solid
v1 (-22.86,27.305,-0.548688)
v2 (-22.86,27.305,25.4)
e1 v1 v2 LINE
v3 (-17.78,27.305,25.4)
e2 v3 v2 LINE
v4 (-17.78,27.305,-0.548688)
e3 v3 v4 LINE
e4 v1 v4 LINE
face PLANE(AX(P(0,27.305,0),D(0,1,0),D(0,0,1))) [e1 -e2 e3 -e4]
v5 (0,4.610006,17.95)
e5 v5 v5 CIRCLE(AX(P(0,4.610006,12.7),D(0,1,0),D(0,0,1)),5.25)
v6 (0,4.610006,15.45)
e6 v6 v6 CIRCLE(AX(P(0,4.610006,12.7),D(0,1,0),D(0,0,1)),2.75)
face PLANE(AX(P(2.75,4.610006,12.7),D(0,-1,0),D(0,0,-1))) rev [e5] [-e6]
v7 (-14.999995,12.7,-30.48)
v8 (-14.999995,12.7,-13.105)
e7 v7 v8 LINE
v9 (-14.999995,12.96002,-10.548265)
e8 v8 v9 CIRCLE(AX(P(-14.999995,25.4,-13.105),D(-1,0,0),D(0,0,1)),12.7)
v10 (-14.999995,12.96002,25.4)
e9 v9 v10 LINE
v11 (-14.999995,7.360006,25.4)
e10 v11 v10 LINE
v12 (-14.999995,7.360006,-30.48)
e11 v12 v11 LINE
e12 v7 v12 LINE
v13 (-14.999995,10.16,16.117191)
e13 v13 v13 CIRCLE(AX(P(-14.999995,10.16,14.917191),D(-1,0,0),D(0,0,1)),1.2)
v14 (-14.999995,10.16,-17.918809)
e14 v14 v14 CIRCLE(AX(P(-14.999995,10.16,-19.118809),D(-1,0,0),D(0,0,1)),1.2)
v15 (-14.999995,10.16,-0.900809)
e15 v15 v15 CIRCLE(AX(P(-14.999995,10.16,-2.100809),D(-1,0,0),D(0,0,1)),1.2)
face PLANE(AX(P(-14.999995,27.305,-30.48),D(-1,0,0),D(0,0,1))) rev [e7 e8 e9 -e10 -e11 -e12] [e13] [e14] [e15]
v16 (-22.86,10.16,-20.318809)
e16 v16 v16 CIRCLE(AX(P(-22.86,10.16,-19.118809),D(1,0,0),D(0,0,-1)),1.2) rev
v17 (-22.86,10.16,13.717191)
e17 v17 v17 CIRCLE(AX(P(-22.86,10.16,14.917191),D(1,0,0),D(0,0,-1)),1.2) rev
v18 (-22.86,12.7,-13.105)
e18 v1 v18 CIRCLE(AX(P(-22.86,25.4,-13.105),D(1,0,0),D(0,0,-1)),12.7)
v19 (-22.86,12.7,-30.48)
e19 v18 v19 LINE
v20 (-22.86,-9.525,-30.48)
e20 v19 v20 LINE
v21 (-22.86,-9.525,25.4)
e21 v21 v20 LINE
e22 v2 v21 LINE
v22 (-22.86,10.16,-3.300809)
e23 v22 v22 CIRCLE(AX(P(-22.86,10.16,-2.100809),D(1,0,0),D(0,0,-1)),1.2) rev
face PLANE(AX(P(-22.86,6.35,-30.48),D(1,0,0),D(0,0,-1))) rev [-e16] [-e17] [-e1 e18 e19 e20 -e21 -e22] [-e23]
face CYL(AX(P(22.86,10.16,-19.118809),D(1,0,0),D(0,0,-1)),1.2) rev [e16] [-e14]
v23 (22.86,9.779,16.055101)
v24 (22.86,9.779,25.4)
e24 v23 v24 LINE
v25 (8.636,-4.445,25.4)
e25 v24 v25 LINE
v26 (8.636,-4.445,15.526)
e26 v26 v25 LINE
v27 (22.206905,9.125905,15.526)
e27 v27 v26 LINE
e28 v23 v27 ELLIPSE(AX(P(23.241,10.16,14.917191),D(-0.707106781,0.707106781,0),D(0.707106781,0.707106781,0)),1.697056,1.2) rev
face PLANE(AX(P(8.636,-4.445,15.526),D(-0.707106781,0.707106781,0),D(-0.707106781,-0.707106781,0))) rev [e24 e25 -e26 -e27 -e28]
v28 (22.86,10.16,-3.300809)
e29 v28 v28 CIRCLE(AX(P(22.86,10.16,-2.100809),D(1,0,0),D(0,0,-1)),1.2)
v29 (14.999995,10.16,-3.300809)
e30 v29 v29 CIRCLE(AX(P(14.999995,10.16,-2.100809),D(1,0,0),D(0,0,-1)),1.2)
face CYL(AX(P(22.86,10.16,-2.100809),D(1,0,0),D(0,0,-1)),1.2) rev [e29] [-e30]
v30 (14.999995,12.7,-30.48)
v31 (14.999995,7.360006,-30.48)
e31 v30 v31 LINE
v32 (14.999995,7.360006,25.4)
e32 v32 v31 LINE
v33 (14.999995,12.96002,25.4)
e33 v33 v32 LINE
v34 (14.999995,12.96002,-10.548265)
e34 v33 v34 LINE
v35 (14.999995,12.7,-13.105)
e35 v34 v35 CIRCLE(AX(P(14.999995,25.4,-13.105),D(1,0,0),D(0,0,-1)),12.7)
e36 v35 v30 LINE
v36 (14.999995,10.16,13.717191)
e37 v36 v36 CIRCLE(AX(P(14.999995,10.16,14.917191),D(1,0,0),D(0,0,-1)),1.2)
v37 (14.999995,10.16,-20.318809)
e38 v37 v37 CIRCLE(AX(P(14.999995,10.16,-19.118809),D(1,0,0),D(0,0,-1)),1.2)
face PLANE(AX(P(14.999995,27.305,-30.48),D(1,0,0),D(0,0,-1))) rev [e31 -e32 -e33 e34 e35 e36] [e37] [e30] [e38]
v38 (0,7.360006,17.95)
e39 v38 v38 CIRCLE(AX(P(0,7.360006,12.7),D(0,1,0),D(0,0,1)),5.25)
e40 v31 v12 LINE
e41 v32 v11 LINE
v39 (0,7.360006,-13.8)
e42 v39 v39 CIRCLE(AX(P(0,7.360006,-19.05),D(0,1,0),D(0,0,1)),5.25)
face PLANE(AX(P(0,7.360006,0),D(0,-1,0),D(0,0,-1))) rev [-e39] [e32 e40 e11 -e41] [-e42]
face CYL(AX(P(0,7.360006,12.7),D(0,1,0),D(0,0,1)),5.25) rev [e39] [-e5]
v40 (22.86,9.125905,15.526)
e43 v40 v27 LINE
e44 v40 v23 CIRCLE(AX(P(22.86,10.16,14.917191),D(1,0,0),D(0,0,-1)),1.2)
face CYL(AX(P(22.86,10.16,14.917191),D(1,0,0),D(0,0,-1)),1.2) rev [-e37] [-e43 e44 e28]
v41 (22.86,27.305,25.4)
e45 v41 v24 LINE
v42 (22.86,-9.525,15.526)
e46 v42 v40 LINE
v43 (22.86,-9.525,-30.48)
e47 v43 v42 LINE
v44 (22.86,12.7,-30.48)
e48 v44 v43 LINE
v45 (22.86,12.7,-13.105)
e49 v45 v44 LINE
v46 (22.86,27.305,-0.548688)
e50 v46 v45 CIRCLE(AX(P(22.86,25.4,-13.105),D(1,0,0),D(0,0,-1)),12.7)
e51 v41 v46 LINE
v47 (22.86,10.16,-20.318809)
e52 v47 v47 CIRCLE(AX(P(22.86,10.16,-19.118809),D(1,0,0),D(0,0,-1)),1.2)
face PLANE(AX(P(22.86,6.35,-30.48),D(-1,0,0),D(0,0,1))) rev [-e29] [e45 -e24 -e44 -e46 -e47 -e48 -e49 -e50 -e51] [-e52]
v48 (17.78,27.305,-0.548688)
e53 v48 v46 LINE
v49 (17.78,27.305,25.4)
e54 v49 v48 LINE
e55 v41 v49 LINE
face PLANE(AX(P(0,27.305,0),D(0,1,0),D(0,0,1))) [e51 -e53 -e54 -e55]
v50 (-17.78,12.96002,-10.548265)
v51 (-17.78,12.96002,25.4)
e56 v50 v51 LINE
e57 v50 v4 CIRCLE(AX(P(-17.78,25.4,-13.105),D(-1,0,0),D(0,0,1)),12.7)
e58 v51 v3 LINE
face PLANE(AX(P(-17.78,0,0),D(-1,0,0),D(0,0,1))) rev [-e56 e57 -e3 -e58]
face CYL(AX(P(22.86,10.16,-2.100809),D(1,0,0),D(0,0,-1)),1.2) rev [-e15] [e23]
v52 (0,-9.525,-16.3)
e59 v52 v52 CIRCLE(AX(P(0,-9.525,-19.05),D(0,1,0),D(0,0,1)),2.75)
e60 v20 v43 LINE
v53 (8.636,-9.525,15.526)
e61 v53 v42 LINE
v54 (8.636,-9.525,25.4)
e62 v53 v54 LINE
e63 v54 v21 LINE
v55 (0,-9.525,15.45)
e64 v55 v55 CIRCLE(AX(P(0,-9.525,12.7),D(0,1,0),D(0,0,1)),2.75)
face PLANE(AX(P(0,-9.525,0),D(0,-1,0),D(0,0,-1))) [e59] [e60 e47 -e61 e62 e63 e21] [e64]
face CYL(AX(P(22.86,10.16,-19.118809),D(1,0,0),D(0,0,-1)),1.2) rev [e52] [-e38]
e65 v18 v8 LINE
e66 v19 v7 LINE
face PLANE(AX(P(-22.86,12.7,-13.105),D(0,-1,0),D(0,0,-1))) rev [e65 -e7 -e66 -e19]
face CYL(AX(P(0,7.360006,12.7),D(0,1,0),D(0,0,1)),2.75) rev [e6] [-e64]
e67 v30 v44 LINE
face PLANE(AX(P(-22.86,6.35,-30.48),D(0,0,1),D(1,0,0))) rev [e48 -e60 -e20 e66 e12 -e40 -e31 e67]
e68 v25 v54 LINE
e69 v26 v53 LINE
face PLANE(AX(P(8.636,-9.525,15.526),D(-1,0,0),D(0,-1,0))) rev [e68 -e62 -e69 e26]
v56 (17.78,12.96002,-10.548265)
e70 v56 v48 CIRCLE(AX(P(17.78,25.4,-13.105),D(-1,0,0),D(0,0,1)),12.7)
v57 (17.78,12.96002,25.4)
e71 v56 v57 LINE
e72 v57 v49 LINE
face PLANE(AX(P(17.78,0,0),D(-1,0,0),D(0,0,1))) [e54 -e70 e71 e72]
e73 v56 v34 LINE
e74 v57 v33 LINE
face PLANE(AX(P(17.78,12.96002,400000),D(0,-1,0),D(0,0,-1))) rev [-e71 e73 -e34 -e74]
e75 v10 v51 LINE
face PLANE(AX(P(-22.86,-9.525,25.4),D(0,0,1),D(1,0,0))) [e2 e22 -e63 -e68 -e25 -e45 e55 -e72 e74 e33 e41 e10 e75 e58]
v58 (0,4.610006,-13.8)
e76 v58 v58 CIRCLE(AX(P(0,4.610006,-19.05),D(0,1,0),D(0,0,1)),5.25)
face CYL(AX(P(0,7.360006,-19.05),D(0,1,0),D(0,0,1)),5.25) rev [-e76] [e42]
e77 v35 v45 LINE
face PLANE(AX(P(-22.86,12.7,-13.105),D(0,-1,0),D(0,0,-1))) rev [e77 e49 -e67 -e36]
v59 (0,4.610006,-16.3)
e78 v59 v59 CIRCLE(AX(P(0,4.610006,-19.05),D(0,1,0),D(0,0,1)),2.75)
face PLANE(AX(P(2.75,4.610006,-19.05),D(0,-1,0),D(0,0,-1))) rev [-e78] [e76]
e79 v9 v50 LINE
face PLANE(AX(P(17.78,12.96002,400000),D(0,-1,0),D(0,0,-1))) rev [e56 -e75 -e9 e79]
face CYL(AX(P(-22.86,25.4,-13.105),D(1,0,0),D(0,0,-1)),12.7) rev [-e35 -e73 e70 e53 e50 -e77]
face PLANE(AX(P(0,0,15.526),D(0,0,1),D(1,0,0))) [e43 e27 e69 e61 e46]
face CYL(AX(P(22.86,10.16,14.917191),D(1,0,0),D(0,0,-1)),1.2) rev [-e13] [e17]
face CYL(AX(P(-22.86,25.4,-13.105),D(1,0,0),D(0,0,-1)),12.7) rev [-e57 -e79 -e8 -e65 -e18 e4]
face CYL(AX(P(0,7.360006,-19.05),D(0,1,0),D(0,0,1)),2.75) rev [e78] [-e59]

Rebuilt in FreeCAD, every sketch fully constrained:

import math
import FreeCAD as App
import Part
import Sketcher
from FreeCAD import Vector
Q = App.Units.Quantity

doc = App.newDocument("Part")
body = doc.addObject("PartDesign::Body", "Body")

# Sketch on XZ plane
sketch1 = body.newObject("Sketcher::SketchObject", "Sketch")
sketch1.AttachmentSupport = (doc.getObject("XZ_Plane"), [""])
sketch1.MapMode = "FlatFace"
sketch1.addGeometry([
    Part.LineSegment(Vector(-23, -30, 0), Vector(-23, 30, 0)),
    Part.LineSegment(Vector(-23, 30, 0), Vector(23, 30, 0)),
    Part.LineSegment(Vector(23, 30, 0), Vector(23, -30, 0)),
    Part.LineSegment(Vector(23, -30, 0), Vector(-23, -30, 0)),
], False)
sketch1.addConstraint([
    Sketcher.Constraint("Coincident", 0, 2, 1, 1),
    Sketcher.Constraint("Coincident", 1, 2, 2, 1),
    Sketcher.Constraint("Coincident", 2, 2, 3, 1),
    Sketcher.Constraint("Coincident", 3, 2, 0, 1),
    Sketcher.Constraint("Vertical", 0),
    Sketcher.Constraint("Horizontal", 1),
    Sketcher.Constraint("Vertical", 2),
    Sketcher.Constraint("Horizontal", 3),
    Sketcher.Constraint("Symmetric", 0, 2, 2, 2, -1, 1),
    Sketcher.Constraint("DistanceX", 1, 1, 1, 2, Q("1.8 in")),
    Sketcher.Constraint("DistanceY", 0, 1, 0, 2, Q("2.4 in")),
])
pad1 = body.newObject("PartDesign::Pad", "Pad")
pad1.Profile = sketch1
pad1.Length = Q("0.25 in")
pad1.Reversed = True

# Sketch on XZ plane
sketch2 = body.newObject("Sketcher::SketchObject", "Sketch001")
sketch2.AttachmentSupport = (doc.getObject("XZ_Plane"), [""])
sketch2.MapMode = "FlatFace"
sketch2.AttachmentOffset = App.Placement(Vector(0, 0, -0.25 * 25.4), App.Rotation())
sketch2.addGeometry([
    Part.LineSegment(Vector(-23, -30, 0), Vector(-23, 30, 0)),  # 0
    Part.LineSegment(Vector(-23, 30, 0), Vector(-15, 30, 0)),  # 1
    Part.LineSegment(Vector(-15, 30, 0), Vector(-15, -30, 0)),  # 2
    Part.LineSegment(Vector(-15, -30, 0), Vector(-23, -30, 0)),  # 3
    Part.LineSegment(Vector(15, -30, 0), Vector(15, 30, 0)),  # 4
    Part.LineSegment(Vector(15, 30, 0), Vector(23, 30, 0)),  # 5
    Part.LineSegment(Vector(23, 30, 0), Vector(23, -30, 0)),  # 6
    Part.LineSegment(Vector(23, -30, 0), Vector(15, -30, 0)),  # 7
], False)
sketch2.addConstraint([
    Sketcher.Constraint("Coincident", 0, 2, 1, 1),
    Sketcher.Constraint("Coincident", 1, 2, 2, 1),
    Sketcher.Constraint("Coincident", 2, 2, 3, 1),
    Sketcher.Constraint("Coincident", 3, 2, 0, 1),
    Sketcher.Constraint("Coincident", 4, 2, 5, 1),
    Sketcher.Constraint("Coincident", 5, 2, 6, 1),
    Sketcher.Constraint("Coincident", 6, 2, 7, 1),
    Sketcher.Constraint("Coincident", 7, 2, 4, 1),
    Sketcher.Constraint("Vertical", 0),
    Sketcher.Constraint("Horizontal", 1),
    Sketcher.Constraint("Vertical", 2),
    Sketcher.Constraint("Horizontal", 3),
    Sketcher.Constraint("Vertical", 4),
    Sketcher.Constraint("Horizontal", 5),
    Sketcher.Constraint("Vertical", 6),
    Sketcher.Constraint("Horizontal", 7),
    Sketcher.Constraint("Symmetric", 2, 2, 4, 2, -1, 1),
    Sketcher.Constraint("Symmetric", 0, 2, 6, 2, -1, 1),
    Sketcher.Constraint("Horizontal", 1, 2, 4, 2),
    Sketcher.Constraint("DistanceY", 0, 1, 0, 2, Q("2.4 in")),
    Sketcher.Constraint("DistanceX", 0, 2, -1, 1, Q("0.9 in")),
    Sketcher.Constraint("DistanceX", 1, 1, 1, 2, 7.860005),
])
pad2 = body.newObject("PartDesign::Pad", "Pad001")
pad2.Profile = sketch2
pad2.Length = Q("0.825 in")
pad2.Reversed = True

# Sketch on XZ plane
sketch3 = body.newObject("Sketcher::SketchObject", "Sketch002")
sketch3.AttachmentSupport = (doc.getObject("XZ_Plane"), [""])
sketch3.MapMode = "FlatFace"
sketch3.AttachmentOffset = App.Placement(Vector(0, 0, -0.4 * 25.4), App.Rotation())
sketch3.addGeometry([
    Part.LineSegment(Vector(-23.6, 14.9, 0), Vector(22.9, 14.9, 0)),
    Part.LineSegment(Vector(22.9, 14.9, 0), Vector(22.9, 13.7, 0)),
    Part.LineSegment(Vector(22.9, 13.7, 0), Vector(-22.9, 13.7, 0)),
    Part.LineSegment(Vector(-22.9, 13.7, 0), Vector(-23.6, 14.9, 0)),
], False)
sketch3.addGeometry(Part.LineSegment(Vector(22.9, 14.9, 0), Vector(-23.6, 14.9, 0)), True)  # axis
sketch3.addConstraint([
    Sketcher.Constraint("Coincident", 0, 2, 1, 1),
    Sketcher.Constraint("Coincident", 1, 2, 2, 1),
    Sketcher.Constraint("Coincident", 2, 2, 3, 1),
    Sketcher.Constraint("Coincident", 3, 2, 0, 1),
    Sketcher.Constraint("Horizontal", 0),
    Sketcher.Constraint("Vertical", 1),
    Sketcher.Constraint("Horizontal", 2),
    Sketcher.Constraint("Horizontal", 4),
    Sketcher.Constraint("Coincident", 4, 1, 0, 2),
    Sketcher.Constraint("Equal", 0, 4),
    Sketcher.Constraint("DistanceX", 2, 2, 2, 1, Q("1.8 in")),
    Sketcher.Constraint("Angle", 3, Q("121 deg")),
    Sketcher.Constraint("DistanceX", -1, 1, 0, 2, Q("0.9 in")),
    Sketcher.Constraint("DistanceY", 1, 2, 1, 1, 1.2),
    Sketcher.Constraint("DistanceY", -1, 1, 0, 2, 14.917191),
])
groove = body.newObject("PartDesign::Groove", "Groove")
groove.Profile = sketch3
groove.ReferenceAxis = (sketch3, ["Axis0"])
groove.Angle = 360
doc.recompute()

linearpattern = body.newObject("PartDesign::LinearPattern", "LinearPattern")
linearpattern.Originals = [groove]
linearpattern.Direction = (doc.getObject("Z_Axis"), [""])
linearpattern.Mode = "offset"
linearpattern.Offset = Q("0.67 in")
linearpattern.Occurrences = 3
linearpattern.Reversed = True
body.Tip = linearpattern

# Sketch on XZ plane
sketch4 = body.newObject("Sketcher::SketchObject", "Sketch003")
sketch4.AttachmentSupport = (doc.getObject("XZ_Plane"), [""])
sketch4.MapMode = "FlatFace"
sketch4.addGeometry([
    Part.LineSegment(Vector(-23, -30, 0), Vector(-23, 30, 0)),
    Part.LineSegment(Vector(-23, 30, 0), Vector(23, 30, 0)),
    Part.LineSegment(Vector(23, 30, 0), Vector(23, -30, 0)),
    Part.LineSegment(Vector(23, -30, 0), Vector(-23, -30, 0)),
], False)
sketch4.addConstraint([
    Sketcher.Constraint("Coincident", 0, 2, 1, 1),
    Sketcher.Constraint("Coincident", 1, 2, 2, 1),
    Sketcher.Constraint("Coincident", 2, 2, 3, 1),
    Sketcher.Constraint("Coincident", 3, 2, 0, 1),
    Sketcher.Constraint("Vertical", 0),
    Sketcher.Constraint("Horizontal", 1),
    Sketcher.Constraint("Vertical", 2),
    Sketcher.Constraint("Horizontal", 3),
    Sketcher.Constraint("Symmetric", 0, 2, 2, 2, -1, 1),
    Sketcher.Constraint("DistanceX", 1, 1, 1, 2, Q("1.8 in")),
    Sketcher.Constraint("DistanceY", 0, 1, 0, 2, Q("2.4 in")),
])
pad3 = body.newObject("PartDesign::Pad", "Pad002")
pad3.Profile = sketch4
pad3.Length = Q("0.1 in")

# Sketch on YZ plane
sketch5 = body.newObject("Sketcher::SketchObject", "Sketch004")
sketch5.AttachmentSupport = (doc.getObject("YZ_Plane"), [""])
sketch5.MapMode = "FlatFace"
sketch5.AttachmentOffset = App.Placement(Vector(0, 0, 0 * 25.4), App.Rotation())
sketch5.addGeometry([
    Part.LineSegment(Vector(27, -30, 0), Vector(13, -30, 0)),
    Part.LineSegment(Vector(13, -30, 0), Vector(13, 30, 0)),
    Part.LineSegment(Vector(13, 30, 0), Vector(27, 30, 0)),
    Part.LineSegment(Vector(27, 30, 0), Vector(27, -30, 0)),
], False)
sketch5.addConstraint([
    Sketcher.Constraint("Coincident", 0, 2, 1, 1),
    Sketcher.Constraint("Coincident", 1, 2, 2, 1),
    Sketcher.Constraint("Coincident", 2, 2, 3, 1),
    Sketcher.Constraint("Coincident", 3, 2, 0, 1),
    Sketcher.Constraint("Horizontal", 0),
    Sketcher.Constraint("Vertical", 1),
    Sketcher.Constraint("Horizontal", 2),
    Sketcher.Constraint("Vertical", 3),
    Sketcher.Constraint("DistanceY", 1, 1, 1, 2, Q("2.4 in")),
    Sketcher.Constraint("DistanceY", 0, 2, -1, 1, Q("1.2 in")),
    Sketcher.Constraint("DistanceX", -1, 1, 2, 2, Q("1.075 in")),
    Sketcher.Constraint("DistanceX", 0, 2, 0, 1, 14.34498),
])
pocket1 = body.newObject("PartDesign::Pocket", "Pocket")
pocket1.Profile = sketch5
pocket1.Length = Q("1.4 in")
pocket1.Midplane = True

# Sketch on YZ plane
sketch6 = body.newObject("Sketcher::SketchObject", "Sketch005")
sketch6.AttachmentSupport = (doc.getObject("YZ_Plane"), [""])
sketch6.MapMode = "FlatFace"
sketch6.AttachmentOffset = App.Placement(Vector(0, 0, 0.9 * 25.4), App.Rotation())
sketch6.addGeometry([
    Part.LineSegment(Vector(12.7, -13.1, 0), Vector(12.7, -30.5, 0)),
    Part.LineSegment(Vector(12.7, -30.5, 0), Vector(27.3, -30.5, 0)),
    Part.LineSegment(Vector(27.3, -30.5, 0), Vector(27.3, -25.7, 0)),
    Part.ArcOfCircle(Part.Circle(Vector(25.4, -13.1, 0), Vector(0, 0, 1), 12.7), math.radians(-81), math.radians(180)),
], False)
sketch6.addConstraint([
    Sketcher.Constraint("Coincident", 0, 2, 1, 1),
    Sketcher.Constraint("Coincident", 1, 2, 2, 1),
    Sketcher.Constraint("Coincident", 2, 2, 3, 1),
    Sketcher.Constraint("Tangent", 3, 2, 0, 1),
    Sketcher.Constraint("Vertical", 0),
    Sketcher.Constraint("Horizontal", 1),
    Sketcher.Constraint("Vertical", 2),
    Sketcher.Constraint("Radius", 3, Q("0.5 in")),
    Sketcher.Constraint("DistanceX", -1, 1, 3, 3, Q("1 in")),
    Sketcher.Constraint("DistanceY", 0, 2, -1, 1, Q("1.2 in")),
    Sketcher.Constraint("DistanceX", 1, 1, 1, 2, Q("0.575 in")),
    Sketcher.Constraint("DistanceY", 0, 2, 0, 1, 17.375),
])
pocket2 = body.newObject("PartDesign::Pocket", "Pocket001")
pocket2.Profile = sketch6
pocket2.Type = "ThroughAll"

# Sketch on XZ plane
sketch7 = body.newObject("Sketcher::SketchObject", "Sketch006")
sketch7.AttachmentSupport = (doc.getObject("XZ_Plane"), [""])
sketch7.MapMode = "FlatFace"
sketch7.AttachmentOffset = App.Placement(Vector(0, 0, 0.1 * 25.4), App.Rotation())
sketch7.addGeometry([
    Part.LineSegment(Vector(-23, 30, 0), Vector(-23, -30, 0)),
    Part.LineSegment(Vector(-23, -30, 0), Vector(23, -30, 0)),
    Part.LineSegment(Vector(23, -30, 0), Vector(23, 30, 0)),
    Part.LineSegment(Vector(23, 30, 0), Vector(-23, 30, 0)),
], False)
sketch7.addConstraint([
    Sketcher.Constraint("Coincident", 0, 2, 1, 1),
    Sketcher.Constraint("Coincident", 1, 2, 2, 1),
    Sketcher.Constraint("Coincident", 2, 2, 3, 1),
    Sketcher.Constraint("Coincident", 3, 2, 0, 1),
    Sketcher.Constraint("Vertical", 0),
    Sketcher.Constraint("Horizontal", 1),
    Sketcher.Constraint("Vertical", 2),
    Sketcher.Constraint("Horizontal", 3),
    Sketcher.Constraint("Symmetric", 0, 2, 2, 2, -1, 1),
    Sketcher.Constraint("DistanceX", 1, 1, 1, 2, Q("1.8 in")),
    Sketcher.Constraint("DistanceY", 0, 2, 0, 1, Q("2.4 in")),
])
pad4 = body.newObject("PartDesign::Pad", "Pad003")
pad4.Profile = sketch7
pad4.Length = Q("0.275 in")

# Sketch on XZ plane
sketch8 = body.newObject("Sketcher::SketchObject", "Sketch007")
sketch8.AttachmentSupport = (doc.getObject("XZ_Plane"), [""])
sketch8.MapMode = "FlatFace"
sketch8.AttachmentOffset = App.Placement(Vector(0, 0, -0.25 * 25.4), App.Rotation())
sketch8.addGeometry([
    Part.LineSegment(Vector(-15, -30, 0), Vector(-15, 30, 0)),
    Part.LineSegment(Vector(-15, 30, 0), Vector(15, 30, 0)),
    Part.LineSegment(Vector(15, 30, 0), Vector(15, -30, 0)),
    Part.LineSegment(Vector(15, -30, 0), Vector(-15, -30, 0)),
], False)
sketch8.addConstraint([
    Sketcher.Constraint("Coincident", 0, 2, 1, 1),
    Sketcher.Constraint("Coincident", 1, 2, 2, 1),
    Sketcher.Constraint("Coincident", 2, 2, 3, 1),
    Sketcher.Constraint("Coincident", 3, 2, 0, 1),
    Sketcher.Constraint("Vertical", 0),
    Sketcher.Constraint("Horizontal", 1),
    Sketcher.Constraint("Vertical", 2),
    Sketcher.Constraint("Horizontal", 3),
    Sketcher.Constraint("Symmetric", 0, 2, 2, 2, -1, 1),
    Sketcher.Constraint("DistanceY", 0, 1, 0, 2, Q("2.4 in")),
    Sketcher.Constraint("DistanceX", 1, 1, 1, 2, 29.999991),
])
pad5 = body.newObject("PartDesign::Pad", "Pad004")
pad5.Profile = sketch8
pad5.Length = 1.010006
pad5.Reversed = True

# Sketch on XZ plane
sketch9 = body.newObject("Sketcher::SketchObject", "Sketch008")
sketch9.AttachmentSupport = (doc.getObject("XZ_Plane"), [""])
sketch9.MapMode = "FlatFace"
sketch9.AttachmentOffset = App.Placement(Vector(0, 0, -7.360006), App.Rotation())
sketch9.addGeometry([
    Part.Circle(Vector(0, 12.7, 0), Vector(0, 0, 1), 2.8),
    Part.Circle(Vector(0, -19.1, 0), Vector(0, 0, 1), 2.8),
], False)
sketch9.addConstraint([
    Sketcher.Constraint("Equal", 0, 1),
    Sketcher.Constraint("PointOnObject", 0, 3, -2),
    Sketcher.Constraint("PointOnObject", 1, 3, -2),
    Sketcher.Constraint("DistanceY", -1, 1, 0, 3, Q("0.5 in")),
    Sketcher.Constraint("Diameter", 0, 5.5),
    Sketcher.Constraint("DistanceY", 1, 3, -1, 1, Q("0.75 in")),
])
doc.recompute()
hole = body.newObject("PartDesign::Hole", "Hole")
hole.Profile = sketch9
hole.ThreadType = "None"
hole.Diameter = 5.5
hole.DepthType = "ThroughAll"
hole.HoleCutType = "Counterbore"
hole.HoleCutDiameter = 10.5
hole.HoleCutDepth = 2.75
hole.Reversed = True

# Sketch on XZ plane
sketch10 = body.newObject("Sketcher::SketchObject", "Sketch009")
sketch10.AttachmentSupport = (doc.getObject("XZ_Plane"), [""])
sketch10.MapMode = "FlatFace"
sketch10.AttachmentOffset = App.Placement(Vector(0, 0, 0.5 * 25.4), App.Rotation())
sketch10.addGeometry([
    Part.LineSegment(Vector(-23, 30, 0), Vector(23, 30, 0)),
    Part.LineSegment(Vector(23, 30, 0), Vector(23, 25, 0)),
    Part.LineSegment(Vector(23, 25, 0), Vector(-23, 25, 0)),
    Part.LineSegment(Vector(-23, 25, 0), Vector(-23, 30, 0)),
], False)
sketch10.addConstraint([
    Sketcher.Constraint("Coincident", 0, 2, 1, 1),
    Sketcher.Constraint("Coincident", 1, 2, 2, 1),
    Sketcher.Constraint("Coincident", 2, 2, 3, 1),
    Sketcher.Constraint("Coincident", 3, 2, 0, 1),
    Sketcher.Constraint("Horizontal", 0),
    Sketcher.Constraint("Vertical", 1),
    Sketcher.Constraint("Horizontal", 2),
    Sketcher.Constraint("Vertical", 3),
    Sketcher.Constraint("DistanceX", 0, 1, 0, 2, Q("1.8 in")),
    Sketcher.Constraint("DistanceY", 1, 2, 1, 1, Q("0.2 in")),
    Sketcher.Constraint("DistanceY", -1, 1, 1, 2, Q("1 in")),
    Sketcher.Constraint("DistanceX", -1, 1, 0, 2, Q("0.9 in")),
])
pocket3 = body.newObject("PartDesign::Pocket", "Pocket002")
pocket3.Profile = sketch10
pocket3.Type = "ThroughAll"
pocket3.Midplane = True

# Sketch on XY plane
sketch11 = body.newObject("Sketcher::SketchObject", "Sketch010")
sketch11.AttachmentSupport = (doc.getObject("XY_Plane"), [""])
sketch11.MapMode = "FlatFace"
sketch11.AttachmentOffset = App.Placement(Vector(0, 0, 1 * 25.4), App.Rotation())
sketch11.addGeometry([
    Part.LineSegment(Vector(9, -4, 0), Vector(9, -10, 0)),
    Part.LineSegment(Vector(9, -10, 0), Vector(23, -10, 0)),
    Part.LineSegment(Vector(23, -10, 0), Vector(23, 10, 0)),
    Part.LineSegment(Vector(23, 10, 0), Vector(9, -4, 0)),
], False)
sketch11.addConstraint([
    Sketcher.Constraint("Coincident", 0, 2, 1, 1),
    Sketcher.Constraint("Coincident", 1, 2, 2, 1),
    Sketcher.Constraint("Coincident", 2, 2, 3, 1),
    Sketcher.Constraint("Coincident", 3, 2, 0, 1),
    Sketcher.Constraint("Vertical", 0),
    Sketcher.Constraint("Horizontal", 1),
    Sketcher.Constraint("Vertical", 2),
    Sketcher.Constraint("DistanceY", 0, 2, 0, 1, Q("0.2 in")),
    Sketcher.Constraint("Angle", 3, Q("-135 deg")),
    Sketcher.Constraint("DistanceX", 1, 1, 1, 2, Q("0.56 in")),
    Sketcher.Constraint("DistanceX", -1, 1, 1, 2, Q("0.9 in")),
    Sketcher.Constraint("DistanceY", 0, 2, -1, 1, Q("0.375 in")),
])
pocket4 = body.newObject("PartDesign::Pocket", "Pocket003")
pocket4.Profile = sketch11
pocket4.Length = 9.874

doc.recompute()
